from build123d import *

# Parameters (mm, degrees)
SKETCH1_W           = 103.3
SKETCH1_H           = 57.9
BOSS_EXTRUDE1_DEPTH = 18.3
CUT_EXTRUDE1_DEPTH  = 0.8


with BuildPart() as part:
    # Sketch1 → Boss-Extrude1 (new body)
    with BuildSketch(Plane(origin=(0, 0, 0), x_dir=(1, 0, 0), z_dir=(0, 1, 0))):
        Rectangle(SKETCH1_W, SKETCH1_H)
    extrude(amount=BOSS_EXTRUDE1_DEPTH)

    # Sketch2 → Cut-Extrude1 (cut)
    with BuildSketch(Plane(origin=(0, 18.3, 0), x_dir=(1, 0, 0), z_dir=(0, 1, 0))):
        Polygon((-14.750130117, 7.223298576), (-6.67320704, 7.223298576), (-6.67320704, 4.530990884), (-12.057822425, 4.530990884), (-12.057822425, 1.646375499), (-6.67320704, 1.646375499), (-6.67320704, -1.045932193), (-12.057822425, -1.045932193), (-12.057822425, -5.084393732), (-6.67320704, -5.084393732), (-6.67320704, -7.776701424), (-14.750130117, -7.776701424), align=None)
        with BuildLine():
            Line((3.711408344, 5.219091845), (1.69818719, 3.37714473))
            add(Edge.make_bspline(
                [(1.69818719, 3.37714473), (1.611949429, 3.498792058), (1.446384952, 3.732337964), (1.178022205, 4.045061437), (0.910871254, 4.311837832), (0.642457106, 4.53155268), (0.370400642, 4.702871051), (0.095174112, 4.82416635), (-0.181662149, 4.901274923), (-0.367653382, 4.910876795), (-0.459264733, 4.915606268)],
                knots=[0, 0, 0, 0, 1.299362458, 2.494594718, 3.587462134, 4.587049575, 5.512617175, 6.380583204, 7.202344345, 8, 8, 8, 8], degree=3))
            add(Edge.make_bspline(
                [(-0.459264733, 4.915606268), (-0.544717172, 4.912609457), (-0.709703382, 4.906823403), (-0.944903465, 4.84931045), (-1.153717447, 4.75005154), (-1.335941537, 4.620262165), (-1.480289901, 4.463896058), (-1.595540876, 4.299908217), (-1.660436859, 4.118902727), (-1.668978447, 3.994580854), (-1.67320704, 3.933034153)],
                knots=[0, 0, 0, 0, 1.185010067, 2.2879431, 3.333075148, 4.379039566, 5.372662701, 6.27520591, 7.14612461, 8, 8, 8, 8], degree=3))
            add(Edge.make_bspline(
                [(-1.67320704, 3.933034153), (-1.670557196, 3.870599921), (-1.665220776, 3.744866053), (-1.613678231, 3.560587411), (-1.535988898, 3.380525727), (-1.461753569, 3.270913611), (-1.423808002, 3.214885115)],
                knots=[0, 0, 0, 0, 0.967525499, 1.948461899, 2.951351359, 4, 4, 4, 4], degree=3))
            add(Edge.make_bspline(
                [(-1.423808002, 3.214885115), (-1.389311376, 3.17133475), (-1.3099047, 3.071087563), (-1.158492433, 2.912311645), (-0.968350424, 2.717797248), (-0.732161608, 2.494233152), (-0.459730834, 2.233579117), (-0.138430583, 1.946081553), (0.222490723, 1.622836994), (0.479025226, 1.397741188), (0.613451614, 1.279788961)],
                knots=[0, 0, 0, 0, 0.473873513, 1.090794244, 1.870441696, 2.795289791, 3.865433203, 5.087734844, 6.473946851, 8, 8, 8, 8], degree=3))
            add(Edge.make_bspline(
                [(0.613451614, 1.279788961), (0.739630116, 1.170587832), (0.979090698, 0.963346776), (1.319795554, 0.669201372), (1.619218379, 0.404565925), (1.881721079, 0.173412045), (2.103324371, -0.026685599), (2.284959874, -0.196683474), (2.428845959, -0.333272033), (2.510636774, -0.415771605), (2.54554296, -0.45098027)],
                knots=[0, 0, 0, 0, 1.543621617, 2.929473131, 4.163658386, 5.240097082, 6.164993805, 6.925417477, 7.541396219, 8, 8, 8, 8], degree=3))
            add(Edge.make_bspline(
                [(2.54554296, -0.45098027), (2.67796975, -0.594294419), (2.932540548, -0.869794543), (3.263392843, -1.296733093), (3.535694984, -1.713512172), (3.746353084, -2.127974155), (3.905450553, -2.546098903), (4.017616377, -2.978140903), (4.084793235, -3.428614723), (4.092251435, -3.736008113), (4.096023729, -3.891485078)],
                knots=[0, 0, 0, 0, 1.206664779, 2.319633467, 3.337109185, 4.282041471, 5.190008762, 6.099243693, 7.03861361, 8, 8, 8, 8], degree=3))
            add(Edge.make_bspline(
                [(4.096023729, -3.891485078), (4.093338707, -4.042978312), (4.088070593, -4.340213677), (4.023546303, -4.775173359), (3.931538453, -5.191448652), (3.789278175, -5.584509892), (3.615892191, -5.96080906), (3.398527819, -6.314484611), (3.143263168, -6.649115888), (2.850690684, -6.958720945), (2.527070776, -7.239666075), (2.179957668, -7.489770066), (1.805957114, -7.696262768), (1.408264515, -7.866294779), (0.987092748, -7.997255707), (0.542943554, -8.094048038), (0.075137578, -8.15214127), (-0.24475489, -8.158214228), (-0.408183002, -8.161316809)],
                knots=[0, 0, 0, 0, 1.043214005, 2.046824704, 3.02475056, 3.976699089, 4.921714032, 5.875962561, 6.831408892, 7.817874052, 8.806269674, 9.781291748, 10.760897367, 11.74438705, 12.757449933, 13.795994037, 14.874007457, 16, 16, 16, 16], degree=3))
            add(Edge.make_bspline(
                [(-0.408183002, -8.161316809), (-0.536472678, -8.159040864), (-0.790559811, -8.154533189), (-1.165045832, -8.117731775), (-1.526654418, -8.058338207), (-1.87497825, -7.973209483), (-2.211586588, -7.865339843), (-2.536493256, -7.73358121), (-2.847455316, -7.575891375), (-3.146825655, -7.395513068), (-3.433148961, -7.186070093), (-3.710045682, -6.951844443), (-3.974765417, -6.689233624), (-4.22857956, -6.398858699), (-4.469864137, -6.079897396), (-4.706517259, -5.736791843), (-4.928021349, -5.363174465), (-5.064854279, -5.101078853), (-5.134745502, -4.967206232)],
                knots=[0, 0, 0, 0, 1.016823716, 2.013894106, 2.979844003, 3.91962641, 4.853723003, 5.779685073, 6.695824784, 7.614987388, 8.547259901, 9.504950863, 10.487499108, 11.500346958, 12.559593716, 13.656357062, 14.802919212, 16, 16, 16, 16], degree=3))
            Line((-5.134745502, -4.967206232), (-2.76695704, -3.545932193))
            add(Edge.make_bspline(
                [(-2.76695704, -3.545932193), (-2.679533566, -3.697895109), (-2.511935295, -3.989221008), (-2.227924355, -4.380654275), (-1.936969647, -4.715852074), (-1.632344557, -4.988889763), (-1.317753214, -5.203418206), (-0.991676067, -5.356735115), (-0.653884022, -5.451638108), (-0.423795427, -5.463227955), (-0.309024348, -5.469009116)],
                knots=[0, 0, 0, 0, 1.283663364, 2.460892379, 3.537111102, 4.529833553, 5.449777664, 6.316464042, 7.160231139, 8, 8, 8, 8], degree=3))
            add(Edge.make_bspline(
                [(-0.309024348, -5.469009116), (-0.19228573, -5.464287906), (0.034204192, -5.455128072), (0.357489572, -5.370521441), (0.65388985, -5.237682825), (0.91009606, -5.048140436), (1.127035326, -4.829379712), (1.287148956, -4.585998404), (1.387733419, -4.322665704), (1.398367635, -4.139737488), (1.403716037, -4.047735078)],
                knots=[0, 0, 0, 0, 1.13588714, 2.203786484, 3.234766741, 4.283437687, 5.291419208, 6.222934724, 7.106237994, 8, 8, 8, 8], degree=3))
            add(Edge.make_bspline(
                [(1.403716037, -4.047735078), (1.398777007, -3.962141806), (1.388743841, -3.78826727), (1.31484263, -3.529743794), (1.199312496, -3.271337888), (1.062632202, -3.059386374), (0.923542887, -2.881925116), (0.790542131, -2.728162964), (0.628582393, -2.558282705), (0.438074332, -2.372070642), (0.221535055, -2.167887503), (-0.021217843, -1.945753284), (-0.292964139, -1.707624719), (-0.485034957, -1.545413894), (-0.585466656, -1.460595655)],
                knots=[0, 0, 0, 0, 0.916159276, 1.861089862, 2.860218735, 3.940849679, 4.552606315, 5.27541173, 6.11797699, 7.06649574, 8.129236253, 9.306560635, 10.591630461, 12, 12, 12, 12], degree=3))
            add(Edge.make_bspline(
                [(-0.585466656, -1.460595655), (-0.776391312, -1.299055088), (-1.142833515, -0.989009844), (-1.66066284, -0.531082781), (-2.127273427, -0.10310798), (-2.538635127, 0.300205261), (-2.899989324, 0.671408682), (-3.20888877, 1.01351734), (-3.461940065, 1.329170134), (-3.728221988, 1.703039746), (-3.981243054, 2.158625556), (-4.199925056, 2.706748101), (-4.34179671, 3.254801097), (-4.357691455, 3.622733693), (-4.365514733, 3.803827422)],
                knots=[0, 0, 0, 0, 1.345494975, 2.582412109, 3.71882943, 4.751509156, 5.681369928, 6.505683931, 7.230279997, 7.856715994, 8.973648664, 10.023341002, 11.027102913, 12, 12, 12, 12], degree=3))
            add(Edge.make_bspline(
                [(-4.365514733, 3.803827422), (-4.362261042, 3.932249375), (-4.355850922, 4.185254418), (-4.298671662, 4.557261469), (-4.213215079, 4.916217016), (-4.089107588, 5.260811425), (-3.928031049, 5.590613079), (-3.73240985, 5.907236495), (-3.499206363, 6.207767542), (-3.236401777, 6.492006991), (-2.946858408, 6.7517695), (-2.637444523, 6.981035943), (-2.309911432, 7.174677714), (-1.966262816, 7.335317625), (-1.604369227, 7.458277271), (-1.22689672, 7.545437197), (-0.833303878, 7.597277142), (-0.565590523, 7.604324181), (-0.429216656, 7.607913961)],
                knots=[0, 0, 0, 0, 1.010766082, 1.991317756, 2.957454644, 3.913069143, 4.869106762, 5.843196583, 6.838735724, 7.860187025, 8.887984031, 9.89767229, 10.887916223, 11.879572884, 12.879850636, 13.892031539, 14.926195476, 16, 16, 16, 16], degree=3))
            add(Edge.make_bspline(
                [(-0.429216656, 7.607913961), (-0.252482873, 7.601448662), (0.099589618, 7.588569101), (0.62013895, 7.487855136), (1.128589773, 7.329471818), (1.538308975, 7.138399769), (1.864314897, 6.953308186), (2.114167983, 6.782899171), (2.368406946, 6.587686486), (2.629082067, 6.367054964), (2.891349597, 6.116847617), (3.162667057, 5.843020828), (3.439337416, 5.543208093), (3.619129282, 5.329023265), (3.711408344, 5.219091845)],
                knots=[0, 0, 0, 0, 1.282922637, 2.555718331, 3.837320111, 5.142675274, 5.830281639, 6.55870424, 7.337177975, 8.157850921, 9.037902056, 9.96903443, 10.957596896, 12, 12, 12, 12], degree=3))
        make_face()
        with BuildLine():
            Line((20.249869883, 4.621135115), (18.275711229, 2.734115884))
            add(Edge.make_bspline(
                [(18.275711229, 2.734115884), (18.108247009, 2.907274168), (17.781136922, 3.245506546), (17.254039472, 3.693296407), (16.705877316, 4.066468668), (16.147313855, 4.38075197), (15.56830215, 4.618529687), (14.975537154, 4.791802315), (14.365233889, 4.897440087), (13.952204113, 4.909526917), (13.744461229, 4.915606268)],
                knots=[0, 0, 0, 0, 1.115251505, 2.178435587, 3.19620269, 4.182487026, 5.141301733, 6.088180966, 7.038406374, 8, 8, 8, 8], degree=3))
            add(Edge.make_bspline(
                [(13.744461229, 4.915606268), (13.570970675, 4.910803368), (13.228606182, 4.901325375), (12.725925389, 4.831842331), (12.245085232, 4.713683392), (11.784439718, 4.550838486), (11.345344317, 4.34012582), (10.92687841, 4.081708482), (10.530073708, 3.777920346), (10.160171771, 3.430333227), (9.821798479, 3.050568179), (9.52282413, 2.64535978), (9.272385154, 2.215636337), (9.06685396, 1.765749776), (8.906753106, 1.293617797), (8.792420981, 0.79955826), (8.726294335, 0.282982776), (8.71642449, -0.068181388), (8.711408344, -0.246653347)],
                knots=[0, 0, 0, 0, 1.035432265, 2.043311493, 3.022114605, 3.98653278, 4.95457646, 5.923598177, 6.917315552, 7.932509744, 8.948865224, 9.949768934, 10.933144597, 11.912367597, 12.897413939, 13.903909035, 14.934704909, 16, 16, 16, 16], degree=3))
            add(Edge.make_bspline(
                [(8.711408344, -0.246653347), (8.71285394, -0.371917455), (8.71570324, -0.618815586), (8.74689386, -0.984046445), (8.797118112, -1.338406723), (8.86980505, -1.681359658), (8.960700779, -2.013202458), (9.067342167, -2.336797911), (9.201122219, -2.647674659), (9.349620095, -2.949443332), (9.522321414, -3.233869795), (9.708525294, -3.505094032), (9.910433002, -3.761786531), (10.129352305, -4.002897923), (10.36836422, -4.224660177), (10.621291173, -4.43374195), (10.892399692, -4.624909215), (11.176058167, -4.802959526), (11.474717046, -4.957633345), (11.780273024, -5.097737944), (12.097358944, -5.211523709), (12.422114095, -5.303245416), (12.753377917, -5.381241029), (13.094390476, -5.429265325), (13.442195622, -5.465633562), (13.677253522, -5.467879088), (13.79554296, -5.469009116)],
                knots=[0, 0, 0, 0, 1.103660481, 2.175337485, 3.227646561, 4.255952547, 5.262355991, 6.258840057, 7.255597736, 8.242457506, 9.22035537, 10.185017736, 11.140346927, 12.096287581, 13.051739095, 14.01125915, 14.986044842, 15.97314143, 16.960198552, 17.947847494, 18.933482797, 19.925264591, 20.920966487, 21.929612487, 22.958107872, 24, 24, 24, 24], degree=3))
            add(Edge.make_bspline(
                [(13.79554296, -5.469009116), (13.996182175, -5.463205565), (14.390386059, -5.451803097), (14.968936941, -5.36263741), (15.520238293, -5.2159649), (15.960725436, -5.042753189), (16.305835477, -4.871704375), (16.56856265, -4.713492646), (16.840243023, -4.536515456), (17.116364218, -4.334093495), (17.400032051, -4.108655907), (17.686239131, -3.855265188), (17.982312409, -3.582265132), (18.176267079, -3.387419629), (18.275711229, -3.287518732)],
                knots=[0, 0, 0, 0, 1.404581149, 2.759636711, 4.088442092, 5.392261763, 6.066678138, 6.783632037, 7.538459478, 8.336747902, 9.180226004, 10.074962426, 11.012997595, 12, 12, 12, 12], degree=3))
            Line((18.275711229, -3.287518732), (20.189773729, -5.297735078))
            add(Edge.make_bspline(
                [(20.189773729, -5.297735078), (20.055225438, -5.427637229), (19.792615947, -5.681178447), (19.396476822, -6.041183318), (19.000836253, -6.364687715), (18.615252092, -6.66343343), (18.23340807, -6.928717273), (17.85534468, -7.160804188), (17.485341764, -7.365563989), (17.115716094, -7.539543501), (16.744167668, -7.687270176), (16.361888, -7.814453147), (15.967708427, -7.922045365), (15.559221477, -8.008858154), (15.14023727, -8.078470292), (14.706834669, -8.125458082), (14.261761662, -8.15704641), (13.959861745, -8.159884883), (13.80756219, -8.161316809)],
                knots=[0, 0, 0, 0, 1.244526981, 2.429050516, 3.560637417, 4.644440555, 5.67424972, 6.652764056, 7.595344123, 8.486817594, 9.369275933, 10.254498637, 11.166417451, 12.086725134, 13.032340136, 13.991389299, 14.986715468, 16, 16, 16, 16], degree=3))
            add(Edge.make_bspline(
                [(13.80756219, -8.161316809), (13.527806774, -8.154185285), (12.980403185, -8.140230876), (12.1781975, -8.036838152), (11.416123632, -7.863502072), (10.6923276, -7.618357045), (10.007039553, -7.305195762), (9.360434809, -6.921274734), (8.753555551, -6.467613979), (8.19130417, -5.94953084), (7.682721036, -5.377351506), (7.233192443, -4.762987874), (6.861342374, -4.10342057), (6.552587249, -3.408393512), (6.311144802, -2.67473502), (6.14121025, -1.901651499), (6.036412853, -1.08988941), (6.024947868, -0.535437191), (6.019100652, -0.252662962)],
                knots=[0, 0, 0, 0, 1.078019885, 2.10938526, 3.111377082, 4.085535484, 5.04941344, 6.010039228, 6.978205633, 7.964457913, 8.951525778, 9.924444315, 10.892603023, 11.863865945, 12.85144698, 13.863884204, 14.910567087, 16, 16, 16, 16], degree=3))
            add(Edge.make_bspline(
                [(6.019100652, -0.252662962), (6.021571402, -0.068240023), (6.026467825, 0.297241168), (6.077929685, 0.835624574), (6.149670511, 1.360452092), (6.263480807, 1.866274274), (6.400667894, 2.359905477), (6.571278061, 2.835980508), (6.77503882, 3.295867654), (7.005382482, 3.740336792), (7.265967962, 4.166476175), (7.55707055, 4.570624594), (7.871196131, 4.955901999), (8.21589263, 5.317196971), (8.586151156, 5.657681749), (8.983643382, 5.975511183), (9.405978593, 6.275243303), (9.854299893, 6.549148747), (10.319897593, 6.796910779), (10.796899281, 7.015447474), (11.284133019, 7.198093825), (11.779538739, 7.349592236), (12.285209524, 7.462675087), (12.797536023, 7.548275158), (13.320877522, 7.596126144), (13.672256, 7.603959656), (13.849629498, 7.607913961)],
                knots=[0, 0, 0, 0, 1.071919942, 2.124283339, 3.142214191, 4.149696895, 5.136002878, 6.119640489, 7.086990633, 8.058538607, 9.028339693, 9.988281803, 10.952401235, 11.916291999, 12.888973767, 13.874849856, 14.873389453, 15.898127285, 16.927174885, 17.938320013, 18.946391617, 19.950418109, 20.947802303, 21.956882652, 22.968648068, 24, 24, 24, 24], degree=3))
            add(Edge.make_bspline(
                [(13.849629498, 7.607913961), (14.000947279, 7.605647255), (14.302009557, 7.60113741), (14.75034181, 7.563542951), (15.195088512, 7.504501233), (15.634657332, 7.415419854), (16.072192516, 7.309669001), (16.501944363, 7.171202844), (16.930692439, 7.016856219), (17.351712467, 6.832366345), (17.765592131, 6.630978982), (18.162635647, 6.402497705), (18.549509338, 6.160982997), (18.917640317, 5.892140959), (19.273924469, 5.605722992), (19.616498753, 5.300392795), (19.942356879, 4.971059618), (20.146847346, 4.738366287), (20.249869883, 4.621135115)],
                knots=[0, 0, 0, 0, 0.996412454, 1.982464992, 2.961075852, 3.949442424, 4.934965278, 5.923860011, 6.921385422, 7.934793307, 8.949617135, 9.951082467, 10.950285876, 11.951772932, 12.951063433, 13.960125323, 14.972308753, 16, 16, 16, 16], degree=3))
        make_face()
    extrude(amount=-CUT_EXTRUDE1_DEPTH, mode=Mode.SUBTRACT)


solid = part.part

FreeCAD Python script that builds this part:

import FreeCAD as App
import Part
import Sketcher

V = App.Vector

doc = App.newDocument("Part")
body = doc.addObject("PartDesign::Body", "Body")

sketch1 = body.newObject("Sketcher::SketchObject", "Sketch")
sketch1.AttachmentSupport = (doc.getObject("XZ_Plane"), [""])
sketch1.MapMode = "FlatFace"
sketch1.addGeometry([
    Part.LineSegment(V(-52, -29, 0), V(-52, 29, 0)),
    Part.LineSegment(V(-52, 29, 0), V(52, 29, 0)),
    Part.LineSegment(V(52, 29, 0), V(52, -29, 0)),
    Part.LineSegment(V(52, -29, 0), V(-52, -29, 0)),
], False)
sketch1.addConstraint([
    Sketcher.Constraint("Coincident", 0, 2, 1, 1),
    Sketcher.Constraint("Coincident", 1, 2, 2, 1),
    Sketcher.Constraint("Coincident", 2, 2, 3, 1),
    Sketcher.Constraint("Coincident", 3, 2, 0, 1),
    Sketcher.Constraint("Vertical", 0),
    Sketcher.Constraint("Horizontal", 1),
    Sketcher.Constraint("Vertical", 2),
    Sketcher.Constraint("Horizontal", 3),
    Sketcher.Constraint("Symmetric", 0, 2, 2, 2, -1, 1),
    Sketcher.Constraint("DistanceX", 1, 1, 1, 2, 103.3),
    Sketcher.Constraint("DistanceY", 0, 1, 0, 2, 57.9),
])
pad1 = body.newObject("PartDesign::Pad", "Pad")
pad1.Profile = sketch1
pad1.Length = 18.3
pad1.Reversed = True

sketch2 = body.newObject("Sketcher::SketchObject", "Sketch001")
sketch2.AttachmentSupport = (doc.getObject("XZ_Plane"), [""])
sketch2.MapMode = "FlatFace"
sketch2.AttachmentOffset = App.Placement(V(0, 0, -18.3), App.Rotation())
sketch2.addGeometry([
    Part.LineSegment(V(-6.673207, -7.223299, 0), V(-14.75013, -7.223299, 0)),
    Part.LineSegment(V(-14.75013, -7.223299, 0), V(-14.75013, 7.776701, 0)),
    Part.LineSegment(V(-14.75013, 7.776701, 0), V(-6.673207, 7.776701, 0)),
    Part.LineSegment(V(-6.673207, 7.776701, 0), V(-6.673207, 5.084394, 0)),
    Part.LineSegment(V(-6.673207, 5.084394, 0), V(-12.057822, 5.084394, 0)),
    Part.LineSegment(V(-12.057822, 5.084394, 0), V(-12.057822, 1.045932, 0)),
    Part.LineSegment(V(-12.057822, 1.045932, 0), V(-6.673207, 1.045932, 0)),
    Part.LineSegment(V(-6.673207, 1.045932, 0), V(-6.673207, -1.646375, 0)),
    Part.LineSegment(V(-6.673207, -1.646375, 0), V(-12.057822, -1.646375, 0)),
    Part.LineSegment(V(-12.057822, -1.646375, 0), V(-12.057822, -4.530991, 0)),
    Part.LineSegment(V(-12.057822, -4.530991, 0), V(-6.673207, -4.530991, 0)),
    Part.LineSegment(V(-6.673207, -4.530991, 0), V(-6.673207, -7.223299, 0)),
    Part.LineSegment(V(1.698187, -3.377145, 0), V(3.711408, -5.219092, 0)),
    Part.BSplineCurve([V(-0.429217, -7.607914, 0), V(-0.252483, -7.601449, 0), V(0.09959, -7.588569, 0), V(0.620139, -7.487855, 0), V(1.12859, -7.329472, 0), V(1.538309, -7.1384, 0), V(1.864315, -6.953308, 0), V(2.114168, -6.782899, 0), V(2.368407, -6.587686, 0), V(2.629082, -6.367055, 0), V(2.89135, -6.116848, 0), V(3.162667, -5.843021, 0), V(3.439337, -5.543208, 0), V(3.619129, -5.329023, 0), V(3.711408, -5.219092, 0)], [4, 1, 1, 1, 1, 1, 1, 1, 1, 1, 1, 1, 4], [0, 1.282922637, 2.555718331, 3.837320111, 5.142675274, 5.830281639, 6.55870424, 7.337177975, 8.157850921, 9.037902056, 9.96903443, 10.957596896, 12], False, 3, [1, 1, 1, 1, 1, 1, 1, 1, 1, 1, 1, 1, 1, 1, 1], False),
    Part.BSplineCurve([V(-4.365515, -3.803827, 0), V(-4.362261, -3.932249, 0), V(-4.355851, -4.185254, 0), V(-4.298672, -4.557261, 0), V(-4.213215, -4.916217, 0), V(-4.089108, -5.260811, 0), V(-3.928031, -5.590613, 0), V(-3.73241, -5.907236, 0), V(-3.499206, -6.207768, 0), V(-3.236402, -6.492007, 0), V(-2.946858, -6.751769, 0), V(-2.637445, -6.981036, 0), V(-2.309911, -7.174678, 0), V(-1.966263, -7.335318, 0), V(-1.604369, -7.458277, 0), V(-1.226897, -7.545437, 0), V(-0.833304, -7.597277, 0), V(-0.565591, -7.604324, 0), V(-0.429217, -7.607914, 0)], [4, 1, 1, 1, 1, 1, 1, 1, 1, 1, 1, 1, 1, 1, 1, 1, 4], [0, 1.010766082, 1.991317756, 2.957454644, 3.913069143, 4.869106762, 5.843196583, 6.838735724, 7.860187025, 8.887984031, 9.89767229, 10.887916223, 11.879572884, 12.879850636, 13.892031539, 14.926195476, 16], False, 3, [1, 1, 1, 1, 1, 1, 1, 1, 1, 1, 1, 1, 1, 1, 1, 1, 1, 1, 1], False),
    Part.BSplineCurve([V(-0.585467, 1.460596, 0), V(-0.776391, 1.299055, 0), V(-1.142834, 0.98901, 0), V(-1.660663, 0.531083, 0), V(-2.127273, 0.103108, 0), V(-2.538635, -0.300205, 0), V(-2.899989, -0.671409, 0), V(-3.208889, -1.013517, 0), V(-3.46194, -1.32917, 0), V(-3.728222, -1.70304, 0), V(-3.981243, -2.158626, 0), V(-4.199925, -2.706748, 0), V(-4.341797, -3.254801, 0), V(-4.357691, -3.622734, 0), V(-4.365515, -3.803827, 0)], [4, 1, 1, 1, 1, 1, 1, 1, 1, 1, 1, 1, 4], [0, 1.345494975, 2.582412109, 3.71882943, 4.751509156, 5.681369928, 6.505683931, 7.230279997, 7.856715994, 8.973648664, 10.023341002, 11.027102913, 12], False, 3, [1, 1, 1, 1, 1, 1, 1, 1, 1, 1, 1, 1, 1, 1, 1], False),
    Part.BSplineCurve([V(1.403716, 4.047735, 0), V(1.398777, 3.962142, 0), V(1.388744, 3.788267, 0), V(1.314843, 3.529744, 0), V(1.199312, 3.271338, 0), V(1.062632, 3.059386, 0), V(0.923543, 2.881925, 0), V(0.790542, 2.728163, 0), V(0.628582, 2.558283, 0), V(0.438074, 2.372071, 0), V(0.221535, 2.167888, 0), V(-0.021218, 1.945753, 0), V(-0.292964, 1.707625, 0), V(-0.485035, 1.545414, 0), V(-0.585467, 1.460596, 0)], [4, 1, 1, 1, 1, 1, 1, 1, 1, 1, 1, 1, 4], [0, 0.916159276, 1.861089862, 2.860218735, 3.940849679, 4.552606315, 5.27541173, 6.11797699, 7.06649574, 8.129236253, 9.306560635, 10.591630461, 12], False, 3, [1, 1, 1, 1, 1, 1, 1, 1, 1, 1, 1, 1, 1, 1, 1], False),
    Part.BSplineCurve([V(-0.309024, 5.469009, 0), V(-0.192286, 5.464288, 0), V(0.034204, 5.455128, 0), V(0.35749, 5.370521, 0), V(0.65389, 5.237683, 0), V(0.910096, 5.04814, 0), V(1.127035, 4.82938, 0), V(1.287149, 4.585998, 0), V(1.387733, 4.322666, 0), V(1.398368, 4.139737, 0), V(1.403716, 4.047735, 0)], [4, 1, 1, 1, 1, 1, 1, 1, 4], [0, 1.13588714, 2.203786484, 3.234766741, 4.283437687, 5.291419208, 6.222934724, 7.106237994, 8], False, 3, [1, 1, 1, 1, 1, 1, 1, 1, 1, 1, 1], False),
    Part.BSplineCurve([V(-2.766957, 3.545932, 0), V(-2.679534, 3.697895, 0), V(-2.511935, 3.989221, 0), V(-2.227924, 4.380654, 0), V(-1.93697, 4.715852, 0), V(-1.632345, 4.98889, 0), V(-1.317753, 5.203418, 0), V(-0.991676, 5.356735, 0), V(-0.653884, 5.451638, 0), V(-0.423795, 5.463228, 0), V(-0.309024, 5.469009, 0)], [4, 1, 1, 1, 1, 1, 1, 1, 4], [0, 1.283663364, 2.460892379, 3.537111102, 4.529833553, 5.449777664, 6.316464042, 7.160231139, 8], False, 3, [1, 1, 1, 1, 1, 1, 1, 1, 1, 1, 1], False),
    Part.LineSegment(V(-2.766957, 3.545932, 0), V(-5.134746, 4.967206, 0)),
    Part.BSplineCurve([V(-0.408183, 8.161317, 0), V(-0.536473, 8.159041, 0), V(-0.79056, 8.154533, 0), V(-1.165046, 8.117732, 0), V(-1.526654, 8.058338, 0), V(-1.874978, 7.973209, 0), V(-2.211587, 7.86534, 0), V(-2.536493, 7.733581, 0), V(-2.847455, 7.575891, 0), V(-3.146826, 7.395513, 0), V(-3.433149, 7.18607, 0), V(-3.710046, 6.951844, 0), V(-3.974765, 6.689234, 0), V(-4.22858, 6.398859, 0), V(-4.469864, 6.079897, 0), V(-4.706517, 5.736792, 0), V(-4.928021, 5.363174, 0), V(-5.064854, 5.101079, 0), V(-5.134746, 4.967206, 0)], [4, 1, 1, 1, 1, 1, 1, 1, 1, 1, 1, 1, 1, 1, 1, 1, 4], [0, 1.016823716, 2.013894106, 2.979844003, 3.91962641, 4.853723003, 5.779685073, 6.695824784, 7.614987388, 8.547259901, 9.504950863, 10.487499108, 11.500346958, 12.559593716, 13.656357062, 14.802919212, 16], False, 3, [1, 1, 1, 1, 1, 1, 1, 1, 1, 1, 1, 1, 1, 1, 1, 1, 1, 1, 1], False),
    Part.BSplineCurve([V(4.096024, 3.891485, 0), V(4.093339, 4.042978, 0), V(4.088071, 4.340214, 0), V(4.023546, 4.775173, 0), V(3.931538, 5.191449, 0), V(3.789278, 5.58451, 0), V(3.615892, 5.960809, 0), V(3.398528, 6.314485, 0), V(3.143263, 6.649116, 0), V(2.850691, 6.958721, 0), V(2.527071, 7.239666, 0), V(2.179958, 7.48977, 0), V(1.805957, 7.696263, 0), V(1.408265, 7.866295, 0), V(0.987093, 7.997256, 0), V(0.542944, 8.094048, 0), V(0.075138, 8.152141, 0), V(-0.244755, 8.158214, 0), V(-0.408183, 8.161317, 0)], [4, 1, 1, 1, 1, 1, 1, 1, 1, 1, 1, 1, 1, 1, 1, 1, 4], [0, 1.043214005, 2.046824704, 3.02475056, 3.976699089, 4.921714032, 5.875962561, 6.831408892, 7.817874052, 8.806269674, 9.781291748, 10.760897367, 11.74438705, 12.757449933, 13.795994037, 14.874007457, 16], False, 3, [1, 1, 1, 1, 1, 1, 1, 1, 1, 1, 1, 1, 1, 1, 1, 1, 1, 1, 1], False),
    Part.BSplineCurve([V(2.545543, 0.45098, 0), V(2.67797, 0.594294, 0), V(2.932541, 0.869795, 0), V(3.263393, 1.296733, 0), V(3.535695, 1.713512, 0), V(3.746353, 2.127974, 0), V(3.905451, 2.546099, 0), V(4.017616, 2.978141, 0), V(4.084793, 3.428615, 0), V(4.092251, 3.736008, 0), V(4.096024, 3.891485, 0)], [4, 1, 1, 1, 1, 1, 1, 1, 4], [0, 1.206664779, 2.319633467, 3.337109185, 4.282041471, 5.190008762, 6.099243693, 7.03861361, 8], False, 3, [1, 1, 1, 1, 1, 1, 1, 1, 1, 1, 1], False),
    Part.BSplineCurve([V(0.613452, -1.279789, 0), V(0.73963, -1.170588, 0), V(0.979091, -0.963347, 0), V(1.319796, -0.669201, 0), V(1.619218, -0.404566, 0), V(1.881721, -0.173412, 0), V(2.103324, 0.026686, 0), V(2.28496, 0.196683, 0), V(2.428846, 0.333272, 0), V(2.510637, 0.415772, 0), V(2.545543, 0.45098, 0)], [4, 1, 1, 1, 1, 1, 1, 1, 4], [0, 1.543621617, 2.929473131, 4.163658386, 5.240097082, 6.164993805, 6.925417477, 7.541396219, 8], False, 3, [1, 1, 1, 1, 1, 1, 1, 1, 1, 1, 1], False),
    Part.BSplineCurve([V(-1.423808, -3.214885, 0), V(-1.389311, -3.171335, 0), V(-1.309905, -3.071088, 0), V(-1.158492, -2.912312, 0), V(-0.96835, -2.717797, 0), V(-0.732162, -2.494233, 0), V(-0.459731, -2.233579, 0), V(-0.138431, -1.946082, 0), V(0.222491, -1.622837, 0), V(0.479025, -1.397741, 0), V(0.613452, -1.279789, 0)], [4, 1, 1, 1, 1, 1, 1, 1, 4], [0, 0.473873513, 1.090794244, 1.870441696, 2.795289791, 3.865433203, 5.087734844, 6.473946851, 8], False, 3, [1, 1, 1, 1, 1, 1, 1, 1, 1, 1, 1], False),
    Part.BSplineCurve([V(-1.673207, -3.933034, 0), V(-1.670557, -3.8706, 0), V(-1.665221, -3.744866, 0), V(-1.613678, -3.560587, 0), V(-1.535989, -3.380526, 0), V(-1.461754, -3.270914, 0), V(-1.423808, -3.214885, 0)], [4, 1, 1, 1, 4], [0, 0.967525499, 1.948461899, 2.951351359, 4], False, 3, [1, 1, 1, 1, 1, 1, 1], False),
    Part.BSplineCurve([V(-0.459265, -4.915606, 0), V(-0.544717, -4.912609, 0), V(-0.709703, -4.906823, 0), V(-0.944903, -4.84931, 0), V(-1.153717, -4.750052, 0), V(-1.335942, -4.620262, 0), V(-1.48029, -4.463896, 0), V(-1.595541, -4.299908, 0), V(-1.660437, -4.118903, 0), V(-1.668978, -3.994581, 0), V(-1.673207, -3.933034, 0)], [4, 1, 1, 1, 1, 1, 1, 1, 4], [0, 1.185010067, 2.2879431, 3.333075148, 4.379039566, 5.372662701, 6.27520591, 7.14612461, 8], False, 3, [1, 1, 1, 1, 1, 1, 1, 1, 1, 1, 1], False),
    Part.BSplineCurve([V(1.698187, -3.377145, 0), V(1.611949, -3.498792, 0), V(1.446385, -3.732338, 0), V(1.178022, -4.045061, 0), V(0.910871, -4.311838, 0), V(0.642457, -4.531553, 0), V(0.370401, -4.702871, 0), V(0.095174, -4.824166, 0), V(-0.181662, -4.901275, 0), V(-0.367653, -4.910877, 0), V(-0.459265, -4.915606, 0)], [4, 1, 1, 1, 1, 1, 1, 1, 4], [0, 1.299362458, 2.494594718, 3.587462134, 4.587049575, 5.512617175, 6.380583204, 7.202344345, 8], False, 3, [1, 1, 1, 1, 1, 1, 1, 1, 1, 1, 1], False),
    Part.LineSegment(V(18.275711, -2.734116, 0), V(20.24987, -4.621135, 0)),
    Part.BSplineCurve([V(13.849629, -7.607914, 0), V(14.000947, -7.605647, 0), V(14.30201, -7.601137, 0), V(14.750342, -7.563543, 0), V(15.195089, -7.504501, 0), V(15.634657, -7.41542, 0), V(16.072193, -7.309669, 0), V(16.501944, -7.171203, 0), V(16.930692, -7.016856, 0), V(17.351712, -6.832366, 0), V(17.765592, -6.630979, 0), V(18.162636, -6.402498, 0), V(18.549509, -6.160983, 0), V(18.91764, -5.892141, 0), V(19.273924, -5.605723, 0), V(19.616499, -5.300393, 0), V(19.942357, -4.97106, 0), V(20.146847, -4.738366, 0), V(20.24987, -4.621135, 0)], [4, 1, 1, 1, 1, 1, 1, 1, 1, 1, 1, 1, 1, 1, 1, 1, 4], [0, 0.996412454, 1.982464992, 2.961075852, 3.949442424, 4.934965278, 5.923860011, 6.921385422, 7.934793307, 8.949617135, 9.951082467, 10.950285876, 11.951772932, 12.951063433, 13.960125323, 14.972308753, 16], False, 3, [1, 1, 1, 1, 1, 1, 1, 1, 1, 1, 1, 1, 1, 1, 1, 1, 1, 1, 1], False),
    Part.BSplineCurve([V(6.019101, 0.252663, 0), V(6.021571, 0.06824, 0), V(6.026468, -0.297241, 0), V(6.07793, -0.835625, 0), V(6.149671, -1.360452, 0), V(6.263481, -1.866274, 0), V(6.400668, -2.359905, 0), V(6.571278, -2.835981, 0), V(6.775039, -3.295868, 0), V(7.005382, -3.740337, 0), V(7.265968, -4.166476, 0), V(7.557071, -4.570625, 0), V(7.871196, -4.955902, 0), V(8.215893, -5.317197, 0), V(8.586151, -5.657682, 0), V(8.983643, -5.975511, 0), V(9.405979, -6.275243, 0), V(9.8543, -6.549149, 0), V(10.319898, -6.796911, 0), V(10.796899, -7.015447, 0), V(11.284133, -7.198094, 0), V(11.779539, -7.349592, 0), V(12.28521, -7.462675, 0), V(12.797536, -7.548275, 0), V(13.320878, -7.596126, 0), V(13.672256, -7.60396, 0), V(13.849629, -7.607914, 0)], [4, 1, 1, 1, 1, 1, 1, 1, 1, 1, 1, 1, 1, 1, 1, 1, 1, 1, 1, 1, 1, 1, 1, 1, 4], [0, 1.071919942, 2.124283339, 3.142214191, 4.149696895, 5.136002878, 6.119640489, 7.086990633, 8.058538607, 9.028339693, 9.988281803, 10.952401235, 11.916291999, 12.888973767, 13.874849856, 14.873389453, 15.898127285, 16.927174885, 17.938320013, 18.946391617, 19.950418109, 20.947802303, 21.956882652, 22.968648068, 24], False, 3, [1, 1, 1, 1, 1, 1, 1, 1, 1, 1, 1, 1, 1, 1, 1, 1, 1, 1, 1, 1, 1, 1, 1, 1, 1, 1, 1], False),
    Part.BSplineCurve([V(13.807562, 8.161317, 0), V(13.527807, 8.154185, 0), V(12.980403, 8.140231, 0), V(12.178197, 8.036838, 0), V(11.416124, 7.863502, 0), V(10.692328, 7.618357, 0), V(10.00704, 7.305196, 0), V(9.360435, 6.921275, 0), V(8.753556, 6.467614, 0), V(8.191304, 5.949531, 0), V(7.682721, 5.377352, 0), V(7.233192, 4.762988, 0), V(6.861342, 4.103421, 0), V(6.552587, 3.408394, 0), V(6.311145, 2.674735, 0), V(6.14121, 1.901651, 0), V(6.036413, 1.089889, 0), V(6.024948, 0.535437, 0), V(6.019101, 0.252663, 0)], [4, 1, 1, 1, 1, 1, 1, 1, 1, 1, 1, 1, 1, 1, 1, 1, 4], [0, 1.078019885, 2.10938526, 3.111377082, 4.085535484, 5.04941344, 6.010039228, 6.978205633, 7.964457913, 8.951525778, 9.924444315, 10.892603023, 11.863865945, 12.85144698, 13.863884204, 14.910567087, 16], False, 3, [1, 1, 1, 1, 1, 1, 1, 1, 1, 1, 1, 1, 1, 1, 1, 1, 1, 1, 1], False),
    Part.BSplineCurve([V(20.189774, 5.297735, 0), V(20.055225, 5.427637, 0), V(19.792616, 5.681178, 0), V(19.396477, 6.041183, 0), V(19.000836, 6.364688, 0), V(18.615252, 6.663433, 0), V(18.233408, 6.928717, 0), V(17.855345, 7.160804, 0), V(17.485342, 7.365564, 0), V(17.115716, 7.539544, 0), V(16.744168, 7.68727, 0), V(16.361888, 7.814453, 0), V(15.967708, 7.922045, 0), V(15.559221, 8.008858, 0), V(15.140237, 8.07847, 0), V(14.706835, 8.125458, 0), V(14.261762, 8.157046, 0), V(13.959862, 8.159885, 0), V(13.807562, 8.161317, 0)], [4, 1, 1, 1, 1, 1, 1, 1, 1, 1, 1, 1, 1, 1, 1, 1, 4], [0, 1.244526981, 2.429050516, 3.560637417, 4.644440555, 5.67424972, 6.652764056, 7.595344123, 8.486817594, 9.369275933, 10.254498637, 11.166417451, 12.086725134, 13.032340136, 13.991389299, 14.986715468, 16], False, 3, [1, 1, 1, 1, 1, 1, 1, 1, 1, 1, 1, 1, 1, 1, 1, 1, 1, 1, 1], False),
    Part.LineSegment(V(20.189774, 5.297735, 0), V(18.275711, 3.287519, 0)),
    Part.BSplineCurve([V(13.795543, 5.469009, 0), V(13.996182, 5.463206, 0), V(14.390386, 5.451803, 0), V(14.968937, 5.362637, 0), V(15.520238, 5.215965, 0), V(15.960725, 5.042753, 0), V(16.305835, 4.871704, 0), V(16.568563, 4.713493, 0), V(16.840243, 4.536515, 0), V(17.116364, 4.334093, 0), V(17.400032, 4.108656, 0), V(17.686239, 3.855265, 0), V(17.982312, 3.582265, 0), V(18.176267, 3.38742, 0), V(18.275711, 3.287519, 0)], [4, 1, 1, 1, 1, 1, 1, 1, 1, 1, 1, 1, 4], [0, 1.404581149, 2.759636711, 4.088442092, 5.392261763, 6.066678138, 6.783632037, 7.538459478, 8.336747902, 9.180226004, 10.074962426, 11.012997595, 12], False, 3, [1, 1, 1, 1, 1, 1, 1, 1, 1, 1, 1, 1, 1, 1, 1], False),
    Part.BSplineCurve([V(8.711408, 0.246653, 0), V(8.712854, 0.371917, 0), V(8.715703, 0.618816, 0), V(8.746894, 0.984046, 0), V(8.797118, 1.338407, 0), V(8.869805, 1.68136, 0), V(8.960701, 2.013202, 0), V(9.067342, 2.336798, 0), V(9.201122, 2.647675, 0), V(9.34962, 2.949443, 0), V(9.522321, 3.23387, 0), V(9.708525, 3.505094, 0), V(9.910433, 3.761787, 0), V(10.129352, 4.002898, 0), V(10.368364, 4.22466, 0), V(10.621291, 4.433742, 0), V(10.8924, 4.624909, 0), V(11.176058, 4.80296, 0), V(11.474717, 4.957633, 0), V(11.780273, 5.097738, 0), V(12.097359, 5.211524, 0), V(12.422114, 5.303245, 0), V(12.753378, 5.381241, 0), V(13.09439, 5.429265, 0), V(13.442196, 5.465634, 0), V(13.677254, 5.467879, 0), V(13.795543, 5.469009, 0)], [4, 1, 1, 1, 1, 1, 1, 1, 1, 1, 1, 1, 1, 1, 1, 1, 1, 1, 1, 1, 1, 1, 1, 1, 4], [0, 1.103660481, 2.175337485, 3.227646561, 4.255952547, 5.262355991, 6.258840057, 7.255597736, 8.242457506, 9.22035537, 10.185017736, 11.140346927, 12.096287581, 13.051739095, 14.01125915, 14.986044842, 15.97314143, 16.960198552, 17.947847494, 18.933482797, 19.925264591, 20.920966487, 21.929612487, 22.958107872, 24], False, 3, [1, 1, 1, 1, 1, 1, 1, 1, 1, 1, 1, 1, 1, 1, 1, 1, 1, 1, 1, 1, 1, 1, 1, 1, 1, 1, 1], False),
    Part.BSplineCurve([V(13.744461, -4.915606, 0), V(13.570971, -4.910803, 0), V(13.228606, -4.901325, 0), V(12.725925, -4.831842, 0), V(12.245085, -4.713683, 0), V(11.78444, -4.550838, 0), V(11.345344, -4.340126, 0), V(10.926878, -4.081708, 0), V(10.530074, -3.77792, 0), V(10.160172, -3.430333, 0), V(9.821798, -3.050568, 0), V(9.522824, -2.64536, 0), V(9.272385, -2.215636, 0), V(9.066854, -1.76575, 0), V(8.906753, -1.293618, 0), V(8.792421, -0.799558, 0), V(8.726294, -0.282983, 0), V(8.716424, 0.068181, 0), V(8.711408, 0.246653, 0)], [4, 1, 1, 1, 1, 1, 1, 1, 1, 1, 1, 1, 1, 1, 1, 1, 4], [0, 1.035432265, 2.043311493, 3.022114605, 3.98653278, 4.95457646, 5.923598177, 6.917315552, 7.932509744, 8.948865224, 9.949768934, 10.933144597, 11.912367597, 12.897413939, 13.903909035, 14.934704909, 16], False, 3, [1, 1, 1, 1, 1, 1, 1, 1, 1, 1, 1, 1, 1, 1, 1, 1, 1, 1, 1], False),
    Part.BSplineCurve([V(18.275711, -2.734116, 0), V(18.108247, -2.907274, 0), V(17.781137, -3.245507, 0), V(17.254039, -3.693296, 0), V(16.705877, -4.066469, 0), V(16.147314, -4.380752, 0), V(15.568302, -4.61853, 0), V(14.975537, -4.791802, 0), V(14.365234, -4.89744, 0), V(13.952204, -4.909527, 0), V(13.744461, -4.915606, 0)], [4, 1, 1, 1, 1, 1, 1, 1, 4], [0, 1.115251505, 2.178435587, 3.19620269, 4.182487026, 5.141301733, 6.088180966, 7.038406374, 8], False, 3, [1, 1, 1, 1, 1, 1, 1, 1, 1, 1, 1], False),
], False)
sketch2.addConstraint([
    Sketcher.Constraint("Block", 13),
    Sketcher.Constraint("Block", 14),
    Sketcher.Constraint("Block", 15),
    Sketcher.Constraint("Block", 16),
    Sketcher.Constraint("Block", 17),
    Sketcher.Constraint("Block", 18),
    Sketcher.Constraint("Block", 20),
    Sketcher.Constraint("Block", 21),
    Sketcher.Constraint("Block", 22),
    Sketcher.Constraint("Block", 23),
    Sketcher.Constraint("Block", 24),
    Sketcher.Constraint("Block", 25),
    Sketcher.Constraint("Block", 26),
    Sketcher.Constraint("Block", 27),
    Sketcher.Constraint("Block", 29),
    Sketcher.Constraint("Block", 30),
    Sketcher.Constraint("Block", 31),
    Sketcher.Constraint("Block", 32),
    Sketcher.Constraint("Block", 34),
    Sketcher.Constraint("Block", 35),
    Sketcher.Constraint("Block", 36),
    Sketcher.Constraint("Block", 37),
    Sketcher.Constraint("Coincident", 0, 2, 1, 1),
    Sketcher.Constraint("Coincident", 1, 2, 2, 1),
    Sketcher.Constraint("Coincident", 2, 2, 3, 1),
    Sketcher.Constraint("Coincident", 3, 2, 4, 1),
    Sketcher.Constraint("Coincident", 4, 2, 5, 1),
    Sketcher.Constraint("Coincident", 5, 2, 6, 1),
    Sketcher.Constraint("Coincident", 6, 2, 7, 1),
    Sketcher.Constraint("Coincident", 7, 2, 8, 1),
    Sketcher.Constraint("Coincident", 8, 2, 9, 1),
    Sketcher.Constraint("Coincident", 9, 2, 10, 1),
    Sketcher.Constraint("Coincident", 10, 2, 11, 1),
    Sketcher.Constraint("Coincident", 11, 2, 0, 1),
    Sketcher.Constraint("Coincident", 12, 2, 13, 2),
    Sketcher.Constraint("Coincident", 18, 1, 19, 1),
    Sketcher.Constraint("Coincident", 19, 2, 20, 2),
    Sketcher.Constraint("Coincident", 27, 1, 12, 1),
    Sketcher.Constraint("Coincident", 28, 2, 29, 2),
    Sketcher.Constraint("Coincident", 32, 1, 33, 1),
    Sketcher.Constraint("Coincident", 33, 2, 34, 2),
    Sketcher.Constraint("Coincident", 37, 1, 28, 1),
    Sketcher.Constraint("Horizontal", 0),
    Sketcher.Constraint("Vertical", 1),
    Sketcher.Constraint("Horizontal", 2),
    Sketcher.Constraint("Vertical", 3),
    Sketcher.Constraint("Horizontal", 4),
    Sketcher.Constraint("Vertical", 5),
    Sketcher.Constraint("Horizontal", 6),
    Sketcher.Constraint("Vertical", 7),
    Sketcher.Constraint("Horizontal", 8),
    Sketcher.Constraint("Vertical", 9),
    Sketcher.Constraint("Horizontal", 10),
    Sketcher.Constraint("Vertical", 11),
    Sketcher.Constraint("Vertical", 3, 2, 6, 2),
    Sketcher.Constraint("Vertical", 5, 2, 8, 2),
    Sketcher.Constraint("Vertical", 7, 2, 10, 2),
    Sketcher.Constraint("Equal", 3, 7),
    Sketcher.Constraint("Equal", 7, 11),
    Sketcher.Constraint("DistanceY", 1, 1, 1, 2, 15.0),
    Sketcher.Constraint("DistanceY", 5, 2, 5, 1, 4.038462),
    Sketcher.Constraint("DistanceY", 0, 2, -1, 1, 7.223299),
    Sketcher.Constraint("DistanceY", 12, 2, 10, 2, 0.688101),
    Sketcher.Constraint("DistanceX", 0, 2, 0, 1, 8.076923),
    Sketcher.Constraint("DistanceX", 4, 2, 4, 1, 5.384615),
    Sketcher.Constraint("DistanceX", 0, 2, -1, 1, 14.75013),
])
pocket1 = body.newObject("PartDesign::Pocket", "Pocket")
pocket1.Profile = sketch2
pocket1.Length = 0.8
pocket1.Reversed = True

doc.recompute()
